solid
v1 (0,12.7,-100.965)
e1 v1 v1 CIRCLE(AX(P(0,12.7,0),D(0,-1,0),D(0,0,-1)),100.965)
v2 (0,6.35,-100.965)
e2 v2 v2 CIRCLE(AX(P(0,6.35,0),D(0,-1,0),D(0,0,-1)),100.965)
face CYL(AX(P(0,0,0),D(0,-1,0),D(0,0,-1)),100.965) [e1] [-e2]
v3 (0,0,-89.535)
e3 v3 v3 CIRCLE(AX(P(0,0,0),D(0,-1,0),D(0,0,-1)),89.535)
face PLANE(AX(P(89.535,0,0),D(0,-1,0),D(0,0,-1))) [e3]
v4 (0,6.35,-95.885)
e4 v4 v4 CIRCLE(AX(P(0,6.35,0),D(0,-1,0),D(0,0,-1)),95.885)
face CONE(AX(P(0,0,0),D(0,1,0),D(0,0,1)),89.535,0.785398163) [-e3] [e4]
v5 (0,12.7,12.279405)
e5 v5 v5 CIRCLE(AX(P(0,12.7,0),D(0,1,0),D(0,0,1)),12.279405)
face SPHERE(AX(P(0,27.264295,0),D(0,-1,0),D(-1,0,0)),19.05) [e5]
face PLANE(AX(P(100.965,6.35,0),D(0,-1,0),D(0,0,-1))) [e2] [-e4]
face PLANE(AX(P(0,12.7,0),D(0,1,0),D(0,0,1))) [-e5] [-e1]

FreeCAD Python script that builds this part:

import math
import FreeCAD as App
import Part
import Sketcher
Q = App.Units.Quantity

doc = App.newDocument("Part")
body = doc.addObject("PartDesign::Body", "Body")

# Sketch on XY plane
sketch1 = body.newObject("Sketcher::SketchObject", "Sketch")
sketch1.AttachmentSupport = (doc.getObject("XY_Plane"), [""])
sketch1.MapMode = "FlatFace"
sketch1.addGeometry([
    Part.LineSegment(App.Vector(100.965, 6.35, 0), App.Vector(100.965, 12.7, 0)),  # 0
    Part.LineSegment(App.Vector(100.965, 12.7, 0), App.Vector(0, 12.7, 0)),  # 1
    Part.LineSegment(App.Vector(0, 12.7, 0), App.Vector(0, 0, 0)),  # 2
    Part.LineSegment(App.Vector(0, 0, 0), App.Vector(89.535, 0, 0)),  # 3
    Part.LineSegment(App.Vector(89.535, 0, 0), App.Vector(95.885, 6.35, 0)),  # 4
    Part.LineSegment(App.Vector(95.885, 6.35, 0), App.Vector(100.965, 6.35, 0)),  # 5
], False)
sketch1.addConstraint([
    Sketcher.Constraint("Coincident", 0, 2, 1, 1),
    Sketcher.Constraint("Coincident", 1, 2, 2, 1),
    Sketcher.Constraint("Coincident", 2, 2, 3, 1),
    Sketcher.Constraint("Coincident", 3, 2, 4, 1),
    Sketcher.Constraint("Coincident", 4, 2, 5, 1),
    Sketcher.Constraint("Coincident", 5, 2, 0, 1),
    Sketcher.Constraint("Vertical", 0),
    Sketcher.Constraint("Horizontal", 1),
    Sketcher.Constraint("Vertical", 2),
    Sketcher.Constraint("Horizontal", 3),
    Sketcher.Constraint("Horizontal", 5),
    Sketcher.Constraint("Coincident", 2, 2, -1, 1),
    Sketcher.Constraint("DistanceX", 5, 1, 5, 2, Q("0.2 in")),
    Sketcher.Constraint("DistanceY", 2, 2, 2, 1, Q("0.5 in")),
    Sketcher.Constraint("Angle", 4, Q("45 deg")),
    Sketcher.Constraint("DistanceY", 0, 1, 0, 2, Q("0.25 in")),
    Sketcher.Constraint("DistanceX", 1, 2, 1, 1, Q("3.975 in")),
])
revolution = body.newObject("PartDesign::Revolution", "Revolution")
revolution.Profile = sketch1
revolution.ReferenceAxis = (sketch1, ["V_Axis"])
revolution.Angle = 360

# Sketch on XY plane
sketch2 = body.newObject("Sketcher::SketchObject", "Sketch001")
sketch2.AttachmentSupport = (doc.getObject("XY_Plane"), [""])
sketch2.MapMode = "FlatFace"
sketch2.addGeometry([
    Part.LineSegment(App.Vector(0, 46.314295, 0), App.Vector(0, 8.214295, 0)),
    Part.ArcOfCircle(Part.Circle(App.Vector(0, 27.264295, 0), App.Vector(0, 0, 1), 19.05), math.radians(-90), math.radians(90)),
], False)
sketch2.addConstraint([
    Sketcher.Constraint("Coincident", 0, 1, 1, 2),
    Sketcher.Constraint("Coincident", 1, 1, 0, 2),
    Sketcher.Constraint("Vertical", 0),
    Sketcher.Constraint("PointOnObject", 1, 3, -2),
    Sketcher.Constraint("PointOnObject", 0, 1, -2),
    Sketcher.Constraint("Radius", 1, Q("0.75 in")),
    Sketcher.Constraint("DistanceY", -1, 1, 1, 3, Q("27.264295 mm")),
])
revolution2 = body.newObject("PartDesign::Revolution", "Revolution001")
revolution2.Profile = sketch2
revolution2.ReferenceAxis = (sketch2, ["V_Axis"])
revolution2.Angle = 360

doc.recompute()
